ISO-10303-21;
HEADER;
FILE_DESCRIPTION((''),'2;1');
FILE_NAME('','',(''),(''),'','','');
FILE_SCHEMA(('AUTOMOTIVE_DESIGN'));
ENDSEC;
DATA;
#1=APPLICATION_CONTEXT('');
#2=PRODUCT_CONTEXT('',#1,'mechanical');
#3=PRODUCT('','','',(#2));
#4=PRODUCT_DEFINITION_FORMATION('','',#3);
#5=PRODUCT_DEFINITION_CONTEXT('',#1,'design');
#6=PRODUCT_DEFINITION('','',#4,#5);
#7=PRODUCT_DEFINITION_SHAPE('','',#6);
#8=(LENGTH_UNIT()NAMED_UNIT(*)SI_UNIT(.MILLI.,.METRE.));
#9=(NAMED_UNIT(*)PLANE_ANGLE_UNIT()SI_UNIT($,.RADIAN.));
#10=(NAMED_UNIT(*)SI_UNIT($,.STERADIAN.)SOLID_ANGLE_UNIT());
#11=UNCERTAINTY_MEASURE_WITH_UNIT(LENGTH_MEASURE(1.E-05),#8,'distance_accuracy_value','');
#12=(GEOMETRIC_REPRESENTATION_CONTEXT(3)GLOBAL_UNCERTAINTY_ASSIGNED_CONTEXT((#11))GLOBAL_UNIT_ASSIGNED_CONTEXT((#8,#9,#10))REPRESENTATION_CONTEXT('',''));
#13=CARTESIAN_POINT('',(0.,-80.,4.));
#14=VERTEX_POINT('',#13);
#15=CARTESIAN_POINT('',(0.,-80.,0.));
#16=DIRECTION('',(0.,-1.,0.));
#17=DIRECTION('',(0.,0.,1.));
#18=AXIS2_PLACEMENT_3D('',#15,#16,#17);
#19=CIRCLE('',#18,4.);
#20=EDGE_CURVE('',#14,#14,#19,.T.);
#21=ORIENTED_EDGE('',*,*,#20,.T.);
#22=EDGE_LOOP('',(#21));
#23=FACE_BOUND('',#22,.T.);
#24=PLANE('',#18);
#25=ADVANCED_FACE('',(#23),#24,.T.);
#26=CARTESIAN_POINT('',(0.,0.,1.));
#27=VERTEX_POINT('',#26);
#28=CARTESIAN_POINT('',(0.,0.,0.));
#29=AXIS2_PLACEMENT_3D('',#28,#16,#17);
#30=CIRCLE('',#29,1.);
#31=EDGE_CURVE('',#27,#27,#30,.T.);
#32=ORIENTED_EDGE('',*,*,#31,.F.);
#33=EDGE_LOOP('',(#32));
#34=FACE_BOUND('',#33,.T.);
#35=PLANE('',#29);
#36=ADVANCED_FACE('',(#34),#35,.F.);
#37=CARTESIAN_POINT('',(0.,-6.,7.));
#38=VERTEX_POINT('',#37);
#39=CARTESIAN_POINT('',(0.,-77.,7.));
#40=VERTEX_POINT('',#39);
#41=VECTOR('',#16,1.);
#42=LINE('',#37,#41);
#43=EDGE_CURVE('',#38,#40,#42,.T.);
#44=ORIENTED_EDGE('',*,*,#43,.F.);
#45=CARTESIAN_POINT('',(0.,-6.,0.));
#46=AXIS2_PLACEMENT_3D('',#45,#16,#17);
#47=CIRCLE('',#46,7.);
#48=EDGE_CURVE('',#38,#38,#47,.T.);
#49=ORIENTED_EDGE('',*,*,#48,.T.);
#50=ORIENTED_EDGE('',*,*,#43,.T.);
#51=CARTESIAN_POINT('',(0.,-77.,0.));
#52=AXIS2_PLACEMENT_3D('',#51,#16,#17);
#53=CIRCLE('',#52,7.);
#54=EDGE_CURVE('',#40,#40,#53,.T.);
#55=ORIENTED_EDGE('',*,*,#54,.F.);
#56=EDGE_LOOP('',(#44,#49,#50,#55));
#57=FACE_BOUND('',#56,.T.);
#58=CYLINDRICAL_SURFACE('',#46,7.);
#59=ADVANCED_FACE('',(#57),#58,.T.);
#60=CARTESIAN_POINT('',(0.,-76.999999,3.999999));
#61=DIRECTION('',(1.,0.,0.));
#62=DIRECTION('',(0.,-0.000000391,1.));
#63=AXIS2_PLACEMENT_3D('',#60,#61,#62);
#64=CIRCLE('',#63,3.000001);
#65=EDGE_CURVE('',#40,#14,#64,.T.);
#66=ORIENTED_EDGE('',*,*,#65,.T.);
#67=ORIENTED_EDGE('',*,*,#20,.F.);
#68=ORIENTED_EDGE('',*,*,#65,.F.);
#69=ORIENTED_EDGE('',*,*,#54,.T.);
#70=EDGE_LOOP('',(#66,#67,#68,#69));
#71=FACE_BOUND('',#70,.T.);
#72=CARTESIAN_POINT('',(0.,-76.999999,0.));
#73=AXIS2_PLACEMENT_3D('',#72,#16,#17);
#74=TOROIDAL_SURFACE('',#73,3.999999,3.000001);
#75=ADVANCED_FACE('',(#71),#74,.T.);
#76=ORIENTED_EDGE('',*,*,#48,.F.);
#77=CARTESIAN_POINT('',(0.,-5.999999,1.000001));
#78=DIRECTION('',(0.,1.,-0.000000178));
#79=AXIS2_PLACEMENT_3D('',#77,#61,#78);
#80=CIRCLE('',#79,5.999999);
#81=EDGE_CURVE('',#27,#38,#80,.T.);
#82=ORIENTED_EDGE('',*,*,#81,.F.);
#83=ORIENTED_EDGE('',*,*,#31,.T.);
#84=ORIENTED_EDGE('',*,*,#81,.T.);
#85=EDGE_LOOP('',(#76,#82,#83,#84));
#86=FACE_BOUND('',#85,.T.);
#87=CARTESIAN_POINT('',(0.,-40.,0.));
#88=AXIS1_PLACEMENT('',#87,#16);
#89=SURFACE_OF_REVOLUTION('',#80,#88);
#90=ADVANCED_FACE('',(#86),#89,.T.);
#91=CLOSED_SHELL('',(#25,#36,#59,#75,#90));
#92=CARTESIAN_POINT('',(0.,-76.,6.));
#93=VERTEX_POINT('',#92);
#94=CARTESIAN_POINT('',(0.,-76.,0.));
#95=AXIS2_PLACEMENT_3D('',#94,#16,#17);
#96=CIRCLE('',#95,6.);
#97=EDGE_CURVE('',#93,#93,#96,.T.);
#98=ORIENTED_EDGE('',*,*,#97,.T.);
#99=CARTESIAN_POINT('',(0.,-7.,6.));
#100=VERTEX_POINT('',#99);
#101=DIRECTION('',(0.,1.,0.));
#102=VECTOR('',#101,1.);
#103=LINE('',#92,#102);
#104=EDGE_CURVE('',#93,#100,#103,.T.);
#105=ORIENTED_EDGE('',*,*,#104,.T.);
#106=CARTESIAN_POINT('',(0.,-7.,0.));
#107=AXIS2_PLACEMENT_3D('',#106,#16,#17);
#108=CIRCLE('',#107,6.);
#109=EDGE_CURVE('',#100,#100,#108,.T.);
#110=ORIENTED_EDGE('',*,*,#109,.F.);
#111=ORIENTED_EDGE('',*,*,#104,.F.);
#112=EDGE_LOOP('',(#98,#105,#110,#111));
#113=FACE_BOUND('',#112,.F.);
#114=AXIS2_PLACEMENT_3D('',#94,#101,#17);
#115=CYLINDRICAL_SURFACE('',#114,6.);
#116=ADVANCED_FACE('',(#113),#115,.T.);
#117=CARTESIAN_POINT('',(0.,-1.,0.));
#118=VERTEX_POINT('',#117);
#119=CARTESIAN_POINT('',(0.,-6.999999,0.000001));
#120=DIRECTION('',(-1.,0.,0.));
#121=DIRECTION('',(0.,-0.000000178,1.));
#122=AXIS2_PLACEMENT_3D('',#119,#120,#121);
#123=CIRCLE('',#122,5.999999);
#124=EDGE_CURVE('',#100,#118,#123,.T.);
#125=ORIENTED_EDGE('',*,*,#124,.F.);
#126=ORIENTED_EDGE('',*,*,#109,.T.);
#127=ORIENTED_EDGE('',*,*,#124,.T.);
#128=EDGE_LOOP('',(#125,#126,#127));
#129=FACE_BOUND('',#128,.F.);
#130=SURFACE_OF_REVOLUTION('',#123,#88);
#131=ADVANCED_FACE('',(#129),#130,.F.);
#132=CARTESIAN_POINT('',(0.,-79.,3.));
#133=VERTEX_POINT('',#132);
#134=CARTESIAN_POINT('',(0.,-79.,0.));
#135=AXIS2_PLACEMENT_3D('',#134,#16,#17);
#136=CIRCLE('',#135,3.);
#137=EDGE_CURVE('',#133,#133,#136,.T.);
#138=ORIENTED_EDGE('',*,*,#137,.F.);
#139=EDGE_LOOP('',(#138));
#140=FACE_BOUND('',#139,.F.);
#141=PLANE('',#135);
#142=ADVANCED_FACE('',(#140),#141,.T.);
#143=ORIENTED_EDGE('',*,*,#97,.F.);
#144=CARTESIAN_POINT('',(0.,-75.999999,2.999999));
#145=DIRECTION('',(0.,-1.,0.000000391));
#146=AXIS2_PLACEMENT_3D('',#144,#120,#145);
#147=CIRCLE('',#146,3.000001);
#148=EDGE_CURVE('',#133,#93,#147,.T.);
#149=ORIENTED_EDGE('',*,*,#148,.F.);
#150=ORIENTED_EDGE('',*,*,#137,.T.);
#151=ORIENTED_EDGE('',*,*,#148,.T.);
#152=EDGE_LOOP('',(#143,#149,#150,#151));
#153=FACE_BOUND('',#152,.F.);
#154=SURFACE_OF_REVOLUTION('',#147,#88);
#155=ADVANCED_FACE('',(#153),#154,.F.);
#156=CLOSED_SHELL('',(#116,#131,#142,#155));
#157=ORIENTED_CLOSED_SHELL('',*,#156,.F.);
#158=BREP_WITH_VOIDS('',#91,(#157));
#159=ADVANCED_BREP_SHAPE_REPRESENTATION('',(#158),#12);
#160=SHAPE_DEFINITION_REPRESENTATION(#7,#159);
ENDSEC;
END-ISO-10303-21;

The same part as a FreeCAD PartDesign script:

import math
import FreeCAD as App
import Part
import Sketcher
Q = App.Units.Quantity

doc = App.newDocument("Part")
body = doc.addObject("PartDesign::Body", "Body")

# Sketch on YZ plane
sketch1 = doc.addObject("Sketcher::SketchObject", "Sketch")
body.addObject(sketch1)
sketch1.AttachmentSupport = (doc.YZ_Plane, [""])
sketch1.MapMode = "FlatFace"
sketch1.addGeometry([
    Part.ArcOfCircle(Part.Circle(App.Vector(-5.999999, 1.000001, 0), App.Vector(0, 0, 1), 5.999999), math.radians(-0.00001), math.radians(90.00001)),  # 0
    Part.LineSegment(App.Vector(-6, 7, 0), App.Vector(-77, 7, 0)),  # 1
    Part.ArcOfCircle(Part.Circle(App.Vector(-76.999999, 3.999999, 0), App.Vector(0, 0, 1), 3.000001), math.radians(90.000022), math.radians(179.999978)),  # 2
    Part.LineSegment(App.Vector(-80, 4, 0), App.Vector(-80, 0, 0)),  # 3
    Part.LineSegment(App.Vector(-80, 0, 0), App.Vector(-79, 0, 0)),  # 4
    Part.LineSegment(App.Vector(-79, 0, 0), App.Vector(-79, 3, 0)),  # 5
    Part.ArcOfCircle(Part.Circle(App.Vector(-75.999999, 2.999999, 0), App.Vector(0, 0, 1), 3.000001), math.radians(90.000022), math.radians(179.999978)),  # 6
    Part.LineSegment(App.Vector(-76, 6, 0), App.Vector(-7, 6, 0)),  # 7
    Part.ArcOfCircle(Part.Circle(App.Vector(-6.999999, 0.000001, 0), App.Vector(0, 0, 1), 5.999999), math.radians(-0.00001), math.radians(90.00001)),  # 8
    Part.LineSegment(App.Vector(-1, 0, 0), App.Vector(0, 0, 0)),  # 9
    Part.LineSegment(App.Vector(0, 0, 0), App.Vector(0, 1, 0)),  # 10
], False)
sketch1.addConstraint([
    Sketcher.Constraint("Tangent", 0, 2, 1, 1),
    Sketcher.Constraint("Tangent", 1, 2, 2, 1),
    Sketcher.Constraint("Tangent", 2, 2, 3, 1),
    Sketcher.Constraint("Coincident", 3, 2, 4, 1),
    Sketcher.Constraint("Coincident", 4, 2, 5, 1),
    Sketcher.Constraint("Tangent", 5, 2, 6, 2),
    Sketcher.Constraint("Tangent", 6, 1, 7, 1),
    Sketcher.Constraint("Tangent", 7, 2, 8, 2),
    Sketcher.Constraint("Coincident", 8, 1, 9, 1),
    Sketcher.Constraint("Coincident", 9, 2, 10, 1),
    Sketcher.Constraint("Tangent", 10, 2, 0, 1),
    Sketcher.Constraint("Horizontal", 1),
    Sketcher.Constraint("Vertical", 3),
    Sketcher.Constraint("Horizontal", 4),
    Sketcher.Constraint("Vertical", 5),
    Sketcher.Constraint("Horizontal", 7),
    Sketcher.Constraint("Horizontal", 9),
    Sketcher.Constraint("Vertical", 10),
    Sketcher.Constraint("Coincident", 9, 2, -1, 1),
    Sketcher.Constraint("Equal", 2, 6),
    Sketcher.Constraint("Equal", 0, 8),
    Sketcher.Constraint("PointOnObject", 8, 3, -1),
    Sketcher.Constraint("PointOnObject", 3, 2, -1),
    Sketcher.Constraint("Equal", 4, 9),
    Sketcher.Constraint("Equal", 9, 10),
    Sketcher.Constraint("Radius", 0, Q("5.999999 mm")),
    Sketcher.Constraint("Radius", 2, Q("3.000001 mm")),
    Sketcher.Constraint("DistanceX", 1, 2, 1, 1, Q("71 mm")),
    Sketcher.Constraint("DistanceX", 4, 1, 4, 2, Q("1 mm")),
])
revolution = doc.addObject("PartDesign::Revolution", "Revolution")
body.addObject(revolution)
revolution.Profile = sketch1
revolution.ReferenceAxis = (sketch1, ["H_Axis"])
revolution.Angle = 360

doc.recompute()
